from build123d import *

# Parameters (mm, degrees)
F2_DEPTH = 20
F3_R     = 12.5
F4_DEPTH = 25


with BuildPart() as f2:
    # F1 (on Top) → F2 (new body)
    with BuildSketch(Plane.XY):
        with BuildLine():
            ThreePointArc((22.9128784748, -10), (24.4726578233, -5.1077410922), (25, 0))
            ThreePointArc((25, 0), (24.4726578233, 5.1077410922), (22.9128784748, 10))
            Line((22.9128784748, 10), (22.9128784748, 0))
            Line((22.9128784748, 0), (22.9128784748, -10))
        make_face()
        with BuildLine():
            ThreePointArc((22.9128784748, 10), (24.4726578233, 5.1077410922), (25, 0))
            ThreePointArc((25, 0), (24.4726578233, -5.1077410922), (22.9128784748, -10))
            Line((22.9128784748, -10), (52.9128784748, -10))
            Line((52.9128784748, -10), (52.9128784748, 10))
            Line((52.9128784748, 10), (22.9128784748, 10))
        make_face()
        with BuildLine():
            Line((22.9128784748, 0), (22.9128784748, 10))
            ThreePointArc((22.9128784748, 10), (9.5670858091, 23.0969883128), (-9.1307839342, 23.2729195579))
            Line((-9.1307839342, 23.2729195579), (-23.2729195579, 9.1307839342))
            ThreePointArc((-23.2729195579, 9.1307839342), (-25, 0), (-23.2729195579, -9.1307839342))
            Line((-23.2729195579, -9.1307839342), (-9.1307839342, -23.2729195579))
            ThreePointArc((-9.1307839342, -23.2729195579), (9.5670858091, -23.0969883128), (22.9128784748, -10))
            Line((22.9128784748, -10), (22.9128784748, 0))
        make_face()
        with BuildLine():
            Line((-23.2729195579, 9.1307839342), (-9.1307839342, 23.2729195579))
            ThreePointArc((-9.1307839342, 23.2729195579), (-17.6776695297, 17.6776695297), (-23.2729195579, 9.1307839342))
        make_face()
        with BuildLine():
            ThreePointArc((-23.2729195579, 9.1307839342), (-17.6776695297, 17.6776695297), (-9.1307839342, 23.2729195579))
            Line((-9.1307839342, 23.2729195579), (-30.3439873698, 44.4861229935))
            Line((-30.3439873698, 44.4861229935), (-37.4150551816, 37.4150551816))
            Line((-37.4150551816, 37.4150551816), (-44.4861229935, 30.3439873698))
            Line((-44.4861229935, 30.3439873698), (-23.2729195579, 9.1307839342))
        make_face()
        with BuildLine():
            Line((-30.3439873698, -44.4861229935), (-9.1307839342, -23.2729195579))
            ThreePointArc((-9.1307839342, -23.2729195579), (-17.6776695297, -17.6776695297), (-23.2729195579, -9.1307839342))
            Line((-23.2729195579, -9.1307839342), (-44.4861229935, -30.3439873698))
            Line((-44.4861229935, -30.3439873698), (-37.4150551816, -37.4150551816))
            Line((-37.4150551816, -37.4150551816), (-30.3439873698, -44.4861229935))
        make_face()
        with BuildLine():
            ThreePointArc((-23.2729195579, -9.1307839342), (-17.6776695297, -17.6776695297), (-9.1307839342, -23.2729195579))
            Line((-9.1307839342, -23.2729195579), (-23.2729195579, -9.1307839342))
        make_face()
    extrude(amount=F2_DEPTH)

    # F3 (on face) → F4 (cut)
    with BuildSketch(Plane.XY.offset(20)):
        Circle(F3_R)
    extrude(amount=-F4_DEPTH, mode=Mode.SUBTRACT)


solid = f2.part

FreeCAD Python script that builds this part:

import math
import FreeCAD as App
import Part
import Sketcher
from FreeCAD import Vector

doc = App.newDocument("Part")
body = doc.addObject("PartDesign::Body", "Body")

# Sketch on XY plane
sketch1 = body.newObject("Sketcher::SketchObject", "Sketch")
sketch1.AttachmentSupport = (doc.getObject("XY_Plane"), [""])
sketch1.MapMode = "FlatFace"
sketch1.addGeometry(Part.LineSegment(Vector(22.912878, -10, 0), Vector(52.912878, -10, 0)), False)
sketch1.addGeometry(Part.LineSegment(Vector(52.912878, -10, 0), Vector(52.912878, 10, 0)), False)
sketch1.addGeometry(Part.LineSegment(Vector(52.912878, 10, 0), Vector(22.912878, 10, 0)), False)
sketch1.addGeometry(Part.ArcOfCircle(Part.Circle(Vector(0, 0, 0), Vector(0, 0, 1), 25), math.radians(23.578178), math.radians(111.421822)), False)
sketch1.addGeometry(Part.LineSegment(Vector(-9.130784, 23.27292, 0), Vector(-30.343987, 44.486123, 0)), False)
sketch1.addGeometry(Part.LineSegment(Vector(-30.343987, 44.486123, 0), Vector(-37.415055, 37.415055, 0)), False)
sketch1.addGeometry(Part.LineSegment(Vector(-37.415055, 37.415055, 0), Vector(-44.486123, 30.343987, 0)), False)
sketch1.addGeometry(Part.LineSegment(Vector(-44.486123, 30.343987, 0), Vector(-23.27292, 9.130784, 0)), False)
sketch1.addGeometry(Part.ArcOfCircle(Part.Circle(Vector(0, 0, 0), Vector(0, 0, 1), 25), math.radians(158.578178), math.radians(201.421822)), False)
sketch1.addGeometry(Part.LineSegment(Vector(-23.27292, -9.130784, 0), Vector(-44.486123, -30.343987, 0)), False)
sketch1.addGeometry(Part.LineSegment(Vector(-44.486123, -30.343987, 0), Vector(-37.415055, -37.415055, 0)), False)
sketch1.addGeometry(Part.LineSegment(Vector(-37.415055, -37.415055, 0), Vector(-30.343987, -44.486123, 0)), False)
sketch1.addGeometry(Part.LineSegment(Vector(-30.343987, -44.486123, 0), Vector(-9.130784, -23.27292, 0)), False)
sketch1.addGeometry(Part.ArcOfCircle(Part.Circle(Vector(0, 0, 0), Vector(0, 0, 1), 25), math.radians(-111.421822), math.radians(-23.578178)), False)
sketch1.addConstraint(Sketcher.Constraint("Coincident", 0, 2, 1, 1))
sketch1.addConstraint(Sketcher.Constraint("Coincident", 1, 2, 2, 1))
sketch1.addConstraint(Sketcher.Constraint("Coincident", 2, 2, 3, 1))
sketch1.addConstraint(Sketcher.Constraint("Coincident", 3, 2, 4, 1))
sketch1.addConstraint(Sketcher.Constraint("Coincident", 4, 2, 5, 1))
sketch1.addConstraint(Sketcher.Constraint("Coincident", 5, 2, 6, 1))
sketch1.addConstraint(Sketcher.Constraint("Coincident", 6, 2, 7, 1))
sketch1.addConstraint(Sketcher.Constraint("Coincident", 7, 2, 8, 1))
sketch1.addConstraint(Sketcher.Constraint("Coincident", 8, 2, 9, 1))
sketch1.addConstraint(Sketcher.Constraint("Coincident", 9, 2, 10, 1))
sketch1.addConstraint(Sketcher.Constraint("Coincident", 10, 2, 11, 1))
sketch1.addConstraint(Sketcher.Constraint("Coincident", 11, 2, 12, 1))
sketch1.addConstraint(Sketcher.Constraint("Coincident", 12, 2, 13, 1))
sketch1.addConstraint(Sketcher.Constraint("Coincident", 13, 2, 0, 1))
sketch1.addConstraint(Sketcher.Constraint("Horizontal", 0))
sketch1.addConstraint(Sketcher.Constraint("Vertical", 1))
sketch1.addConstraint(Sketcher.Constraint("Horizontal", 2))
sketch1.addConstraint(Sketcher.Constraint("Coincident", 3, 3, -1, 1))
sketch1.addConstraint(Sketcher.Constraint("Coincident", 8, 3, -1, 1))
sketch1.addConstraint(Sketcher.Constraint("Coincident", 13, 3, -1, 1))
sketch1.addConstraint(Sketcher.Constraint("Equal", 3, 8))
sketch1.addConstraint(Sketcher.Constraint("Equal", 8, 13))
sketch1.addConstraint(Sketcher.Constraint("Symmetric", 6, 2, 9, 2, -1))
sketch1.addConstraint(Sketcher.Constraint("Symmetric", 5, 2, 10, 2, -1))
sketch1.addConstraint(Sketcher.Constraint("Symmetric", 4, 2, 11, 2, -1))
sketch1.addConstraint(Sketcher.Constraint("Perpendicular", 4, 5))
sketch1.addConstraint(Sketcher.Constraint("Parallel", 5, 6))
sketch1.addConstraint(Sketcher.Constraint("Perpendicular", 6, 7))
sketch1.addConstraint(Sketcher.Constraint("Perpendicular", 7, 9))
sketch1.addConstraint(Sketcher.Constraint("Perpendicular", 9, 10))
sketch1.addConstraint(Sketcher.Constraint("Perpendicular", 11, 12))
sketch1.addConstraint(Sketcher.Constraint("Vertical", 2, 2, 13, 2))
sketch1.addConstraint(Sketcher.Constraint("Equal", 5, 6))
sketch1.addConstraint(Sketcher.Constraint("Equal", 4, 7))
sketch1.addConstraint(Sketcher.Constraint("Radius", 3, 25.0))
sketch1.addConstraint(Sketcher.Constraint("DistanceX", 0, 1, 0, 2, 30.0))
sketch1.addConstraint(Sketcher.Constraint("DistanceY", 1, 1, 1, 2, 20.0))
sketch1.addConstraint(Sketcher.Constraint("Distance", 4, 30.0))
sketch1.addConstraint(Sketcher.Constraint("Distance", 5, 10.0))
pad1 = body.newObject("PartDesign::Pad", "Pad")
pad1.Profile = sketch1
pad1.Length = 20

# Sketch on XY plane
sketch2 = body.newObject("Sketcher::SketchObject", "Sketch001")
sketch2.AttachmentSupport = (doc.getObject("XY_Plane"), [""])
sketch2.MapMode = "FlatFace"
sketch2.AttachmentOffset = App.Placement(Vector(0, 0, 20), App.Rotation())
sketch2.addGeometry(Part.Circle(Vector(0, 0, 0), Vector(0, 0, 1), 12.5), False)
sketch2.addConstraint(Sketcher.Constraint("Coincident", 0, 3, -1, 1))
sketch2.addConstraint(Sketcher.Constraint("Diameter", 0, 25.0))
pocket1 = body.newObject("PartDesign::Pocket", "Pocket")
pocket1.Profile = sketch2
pocket1.Length = 25

doc.recompute()
